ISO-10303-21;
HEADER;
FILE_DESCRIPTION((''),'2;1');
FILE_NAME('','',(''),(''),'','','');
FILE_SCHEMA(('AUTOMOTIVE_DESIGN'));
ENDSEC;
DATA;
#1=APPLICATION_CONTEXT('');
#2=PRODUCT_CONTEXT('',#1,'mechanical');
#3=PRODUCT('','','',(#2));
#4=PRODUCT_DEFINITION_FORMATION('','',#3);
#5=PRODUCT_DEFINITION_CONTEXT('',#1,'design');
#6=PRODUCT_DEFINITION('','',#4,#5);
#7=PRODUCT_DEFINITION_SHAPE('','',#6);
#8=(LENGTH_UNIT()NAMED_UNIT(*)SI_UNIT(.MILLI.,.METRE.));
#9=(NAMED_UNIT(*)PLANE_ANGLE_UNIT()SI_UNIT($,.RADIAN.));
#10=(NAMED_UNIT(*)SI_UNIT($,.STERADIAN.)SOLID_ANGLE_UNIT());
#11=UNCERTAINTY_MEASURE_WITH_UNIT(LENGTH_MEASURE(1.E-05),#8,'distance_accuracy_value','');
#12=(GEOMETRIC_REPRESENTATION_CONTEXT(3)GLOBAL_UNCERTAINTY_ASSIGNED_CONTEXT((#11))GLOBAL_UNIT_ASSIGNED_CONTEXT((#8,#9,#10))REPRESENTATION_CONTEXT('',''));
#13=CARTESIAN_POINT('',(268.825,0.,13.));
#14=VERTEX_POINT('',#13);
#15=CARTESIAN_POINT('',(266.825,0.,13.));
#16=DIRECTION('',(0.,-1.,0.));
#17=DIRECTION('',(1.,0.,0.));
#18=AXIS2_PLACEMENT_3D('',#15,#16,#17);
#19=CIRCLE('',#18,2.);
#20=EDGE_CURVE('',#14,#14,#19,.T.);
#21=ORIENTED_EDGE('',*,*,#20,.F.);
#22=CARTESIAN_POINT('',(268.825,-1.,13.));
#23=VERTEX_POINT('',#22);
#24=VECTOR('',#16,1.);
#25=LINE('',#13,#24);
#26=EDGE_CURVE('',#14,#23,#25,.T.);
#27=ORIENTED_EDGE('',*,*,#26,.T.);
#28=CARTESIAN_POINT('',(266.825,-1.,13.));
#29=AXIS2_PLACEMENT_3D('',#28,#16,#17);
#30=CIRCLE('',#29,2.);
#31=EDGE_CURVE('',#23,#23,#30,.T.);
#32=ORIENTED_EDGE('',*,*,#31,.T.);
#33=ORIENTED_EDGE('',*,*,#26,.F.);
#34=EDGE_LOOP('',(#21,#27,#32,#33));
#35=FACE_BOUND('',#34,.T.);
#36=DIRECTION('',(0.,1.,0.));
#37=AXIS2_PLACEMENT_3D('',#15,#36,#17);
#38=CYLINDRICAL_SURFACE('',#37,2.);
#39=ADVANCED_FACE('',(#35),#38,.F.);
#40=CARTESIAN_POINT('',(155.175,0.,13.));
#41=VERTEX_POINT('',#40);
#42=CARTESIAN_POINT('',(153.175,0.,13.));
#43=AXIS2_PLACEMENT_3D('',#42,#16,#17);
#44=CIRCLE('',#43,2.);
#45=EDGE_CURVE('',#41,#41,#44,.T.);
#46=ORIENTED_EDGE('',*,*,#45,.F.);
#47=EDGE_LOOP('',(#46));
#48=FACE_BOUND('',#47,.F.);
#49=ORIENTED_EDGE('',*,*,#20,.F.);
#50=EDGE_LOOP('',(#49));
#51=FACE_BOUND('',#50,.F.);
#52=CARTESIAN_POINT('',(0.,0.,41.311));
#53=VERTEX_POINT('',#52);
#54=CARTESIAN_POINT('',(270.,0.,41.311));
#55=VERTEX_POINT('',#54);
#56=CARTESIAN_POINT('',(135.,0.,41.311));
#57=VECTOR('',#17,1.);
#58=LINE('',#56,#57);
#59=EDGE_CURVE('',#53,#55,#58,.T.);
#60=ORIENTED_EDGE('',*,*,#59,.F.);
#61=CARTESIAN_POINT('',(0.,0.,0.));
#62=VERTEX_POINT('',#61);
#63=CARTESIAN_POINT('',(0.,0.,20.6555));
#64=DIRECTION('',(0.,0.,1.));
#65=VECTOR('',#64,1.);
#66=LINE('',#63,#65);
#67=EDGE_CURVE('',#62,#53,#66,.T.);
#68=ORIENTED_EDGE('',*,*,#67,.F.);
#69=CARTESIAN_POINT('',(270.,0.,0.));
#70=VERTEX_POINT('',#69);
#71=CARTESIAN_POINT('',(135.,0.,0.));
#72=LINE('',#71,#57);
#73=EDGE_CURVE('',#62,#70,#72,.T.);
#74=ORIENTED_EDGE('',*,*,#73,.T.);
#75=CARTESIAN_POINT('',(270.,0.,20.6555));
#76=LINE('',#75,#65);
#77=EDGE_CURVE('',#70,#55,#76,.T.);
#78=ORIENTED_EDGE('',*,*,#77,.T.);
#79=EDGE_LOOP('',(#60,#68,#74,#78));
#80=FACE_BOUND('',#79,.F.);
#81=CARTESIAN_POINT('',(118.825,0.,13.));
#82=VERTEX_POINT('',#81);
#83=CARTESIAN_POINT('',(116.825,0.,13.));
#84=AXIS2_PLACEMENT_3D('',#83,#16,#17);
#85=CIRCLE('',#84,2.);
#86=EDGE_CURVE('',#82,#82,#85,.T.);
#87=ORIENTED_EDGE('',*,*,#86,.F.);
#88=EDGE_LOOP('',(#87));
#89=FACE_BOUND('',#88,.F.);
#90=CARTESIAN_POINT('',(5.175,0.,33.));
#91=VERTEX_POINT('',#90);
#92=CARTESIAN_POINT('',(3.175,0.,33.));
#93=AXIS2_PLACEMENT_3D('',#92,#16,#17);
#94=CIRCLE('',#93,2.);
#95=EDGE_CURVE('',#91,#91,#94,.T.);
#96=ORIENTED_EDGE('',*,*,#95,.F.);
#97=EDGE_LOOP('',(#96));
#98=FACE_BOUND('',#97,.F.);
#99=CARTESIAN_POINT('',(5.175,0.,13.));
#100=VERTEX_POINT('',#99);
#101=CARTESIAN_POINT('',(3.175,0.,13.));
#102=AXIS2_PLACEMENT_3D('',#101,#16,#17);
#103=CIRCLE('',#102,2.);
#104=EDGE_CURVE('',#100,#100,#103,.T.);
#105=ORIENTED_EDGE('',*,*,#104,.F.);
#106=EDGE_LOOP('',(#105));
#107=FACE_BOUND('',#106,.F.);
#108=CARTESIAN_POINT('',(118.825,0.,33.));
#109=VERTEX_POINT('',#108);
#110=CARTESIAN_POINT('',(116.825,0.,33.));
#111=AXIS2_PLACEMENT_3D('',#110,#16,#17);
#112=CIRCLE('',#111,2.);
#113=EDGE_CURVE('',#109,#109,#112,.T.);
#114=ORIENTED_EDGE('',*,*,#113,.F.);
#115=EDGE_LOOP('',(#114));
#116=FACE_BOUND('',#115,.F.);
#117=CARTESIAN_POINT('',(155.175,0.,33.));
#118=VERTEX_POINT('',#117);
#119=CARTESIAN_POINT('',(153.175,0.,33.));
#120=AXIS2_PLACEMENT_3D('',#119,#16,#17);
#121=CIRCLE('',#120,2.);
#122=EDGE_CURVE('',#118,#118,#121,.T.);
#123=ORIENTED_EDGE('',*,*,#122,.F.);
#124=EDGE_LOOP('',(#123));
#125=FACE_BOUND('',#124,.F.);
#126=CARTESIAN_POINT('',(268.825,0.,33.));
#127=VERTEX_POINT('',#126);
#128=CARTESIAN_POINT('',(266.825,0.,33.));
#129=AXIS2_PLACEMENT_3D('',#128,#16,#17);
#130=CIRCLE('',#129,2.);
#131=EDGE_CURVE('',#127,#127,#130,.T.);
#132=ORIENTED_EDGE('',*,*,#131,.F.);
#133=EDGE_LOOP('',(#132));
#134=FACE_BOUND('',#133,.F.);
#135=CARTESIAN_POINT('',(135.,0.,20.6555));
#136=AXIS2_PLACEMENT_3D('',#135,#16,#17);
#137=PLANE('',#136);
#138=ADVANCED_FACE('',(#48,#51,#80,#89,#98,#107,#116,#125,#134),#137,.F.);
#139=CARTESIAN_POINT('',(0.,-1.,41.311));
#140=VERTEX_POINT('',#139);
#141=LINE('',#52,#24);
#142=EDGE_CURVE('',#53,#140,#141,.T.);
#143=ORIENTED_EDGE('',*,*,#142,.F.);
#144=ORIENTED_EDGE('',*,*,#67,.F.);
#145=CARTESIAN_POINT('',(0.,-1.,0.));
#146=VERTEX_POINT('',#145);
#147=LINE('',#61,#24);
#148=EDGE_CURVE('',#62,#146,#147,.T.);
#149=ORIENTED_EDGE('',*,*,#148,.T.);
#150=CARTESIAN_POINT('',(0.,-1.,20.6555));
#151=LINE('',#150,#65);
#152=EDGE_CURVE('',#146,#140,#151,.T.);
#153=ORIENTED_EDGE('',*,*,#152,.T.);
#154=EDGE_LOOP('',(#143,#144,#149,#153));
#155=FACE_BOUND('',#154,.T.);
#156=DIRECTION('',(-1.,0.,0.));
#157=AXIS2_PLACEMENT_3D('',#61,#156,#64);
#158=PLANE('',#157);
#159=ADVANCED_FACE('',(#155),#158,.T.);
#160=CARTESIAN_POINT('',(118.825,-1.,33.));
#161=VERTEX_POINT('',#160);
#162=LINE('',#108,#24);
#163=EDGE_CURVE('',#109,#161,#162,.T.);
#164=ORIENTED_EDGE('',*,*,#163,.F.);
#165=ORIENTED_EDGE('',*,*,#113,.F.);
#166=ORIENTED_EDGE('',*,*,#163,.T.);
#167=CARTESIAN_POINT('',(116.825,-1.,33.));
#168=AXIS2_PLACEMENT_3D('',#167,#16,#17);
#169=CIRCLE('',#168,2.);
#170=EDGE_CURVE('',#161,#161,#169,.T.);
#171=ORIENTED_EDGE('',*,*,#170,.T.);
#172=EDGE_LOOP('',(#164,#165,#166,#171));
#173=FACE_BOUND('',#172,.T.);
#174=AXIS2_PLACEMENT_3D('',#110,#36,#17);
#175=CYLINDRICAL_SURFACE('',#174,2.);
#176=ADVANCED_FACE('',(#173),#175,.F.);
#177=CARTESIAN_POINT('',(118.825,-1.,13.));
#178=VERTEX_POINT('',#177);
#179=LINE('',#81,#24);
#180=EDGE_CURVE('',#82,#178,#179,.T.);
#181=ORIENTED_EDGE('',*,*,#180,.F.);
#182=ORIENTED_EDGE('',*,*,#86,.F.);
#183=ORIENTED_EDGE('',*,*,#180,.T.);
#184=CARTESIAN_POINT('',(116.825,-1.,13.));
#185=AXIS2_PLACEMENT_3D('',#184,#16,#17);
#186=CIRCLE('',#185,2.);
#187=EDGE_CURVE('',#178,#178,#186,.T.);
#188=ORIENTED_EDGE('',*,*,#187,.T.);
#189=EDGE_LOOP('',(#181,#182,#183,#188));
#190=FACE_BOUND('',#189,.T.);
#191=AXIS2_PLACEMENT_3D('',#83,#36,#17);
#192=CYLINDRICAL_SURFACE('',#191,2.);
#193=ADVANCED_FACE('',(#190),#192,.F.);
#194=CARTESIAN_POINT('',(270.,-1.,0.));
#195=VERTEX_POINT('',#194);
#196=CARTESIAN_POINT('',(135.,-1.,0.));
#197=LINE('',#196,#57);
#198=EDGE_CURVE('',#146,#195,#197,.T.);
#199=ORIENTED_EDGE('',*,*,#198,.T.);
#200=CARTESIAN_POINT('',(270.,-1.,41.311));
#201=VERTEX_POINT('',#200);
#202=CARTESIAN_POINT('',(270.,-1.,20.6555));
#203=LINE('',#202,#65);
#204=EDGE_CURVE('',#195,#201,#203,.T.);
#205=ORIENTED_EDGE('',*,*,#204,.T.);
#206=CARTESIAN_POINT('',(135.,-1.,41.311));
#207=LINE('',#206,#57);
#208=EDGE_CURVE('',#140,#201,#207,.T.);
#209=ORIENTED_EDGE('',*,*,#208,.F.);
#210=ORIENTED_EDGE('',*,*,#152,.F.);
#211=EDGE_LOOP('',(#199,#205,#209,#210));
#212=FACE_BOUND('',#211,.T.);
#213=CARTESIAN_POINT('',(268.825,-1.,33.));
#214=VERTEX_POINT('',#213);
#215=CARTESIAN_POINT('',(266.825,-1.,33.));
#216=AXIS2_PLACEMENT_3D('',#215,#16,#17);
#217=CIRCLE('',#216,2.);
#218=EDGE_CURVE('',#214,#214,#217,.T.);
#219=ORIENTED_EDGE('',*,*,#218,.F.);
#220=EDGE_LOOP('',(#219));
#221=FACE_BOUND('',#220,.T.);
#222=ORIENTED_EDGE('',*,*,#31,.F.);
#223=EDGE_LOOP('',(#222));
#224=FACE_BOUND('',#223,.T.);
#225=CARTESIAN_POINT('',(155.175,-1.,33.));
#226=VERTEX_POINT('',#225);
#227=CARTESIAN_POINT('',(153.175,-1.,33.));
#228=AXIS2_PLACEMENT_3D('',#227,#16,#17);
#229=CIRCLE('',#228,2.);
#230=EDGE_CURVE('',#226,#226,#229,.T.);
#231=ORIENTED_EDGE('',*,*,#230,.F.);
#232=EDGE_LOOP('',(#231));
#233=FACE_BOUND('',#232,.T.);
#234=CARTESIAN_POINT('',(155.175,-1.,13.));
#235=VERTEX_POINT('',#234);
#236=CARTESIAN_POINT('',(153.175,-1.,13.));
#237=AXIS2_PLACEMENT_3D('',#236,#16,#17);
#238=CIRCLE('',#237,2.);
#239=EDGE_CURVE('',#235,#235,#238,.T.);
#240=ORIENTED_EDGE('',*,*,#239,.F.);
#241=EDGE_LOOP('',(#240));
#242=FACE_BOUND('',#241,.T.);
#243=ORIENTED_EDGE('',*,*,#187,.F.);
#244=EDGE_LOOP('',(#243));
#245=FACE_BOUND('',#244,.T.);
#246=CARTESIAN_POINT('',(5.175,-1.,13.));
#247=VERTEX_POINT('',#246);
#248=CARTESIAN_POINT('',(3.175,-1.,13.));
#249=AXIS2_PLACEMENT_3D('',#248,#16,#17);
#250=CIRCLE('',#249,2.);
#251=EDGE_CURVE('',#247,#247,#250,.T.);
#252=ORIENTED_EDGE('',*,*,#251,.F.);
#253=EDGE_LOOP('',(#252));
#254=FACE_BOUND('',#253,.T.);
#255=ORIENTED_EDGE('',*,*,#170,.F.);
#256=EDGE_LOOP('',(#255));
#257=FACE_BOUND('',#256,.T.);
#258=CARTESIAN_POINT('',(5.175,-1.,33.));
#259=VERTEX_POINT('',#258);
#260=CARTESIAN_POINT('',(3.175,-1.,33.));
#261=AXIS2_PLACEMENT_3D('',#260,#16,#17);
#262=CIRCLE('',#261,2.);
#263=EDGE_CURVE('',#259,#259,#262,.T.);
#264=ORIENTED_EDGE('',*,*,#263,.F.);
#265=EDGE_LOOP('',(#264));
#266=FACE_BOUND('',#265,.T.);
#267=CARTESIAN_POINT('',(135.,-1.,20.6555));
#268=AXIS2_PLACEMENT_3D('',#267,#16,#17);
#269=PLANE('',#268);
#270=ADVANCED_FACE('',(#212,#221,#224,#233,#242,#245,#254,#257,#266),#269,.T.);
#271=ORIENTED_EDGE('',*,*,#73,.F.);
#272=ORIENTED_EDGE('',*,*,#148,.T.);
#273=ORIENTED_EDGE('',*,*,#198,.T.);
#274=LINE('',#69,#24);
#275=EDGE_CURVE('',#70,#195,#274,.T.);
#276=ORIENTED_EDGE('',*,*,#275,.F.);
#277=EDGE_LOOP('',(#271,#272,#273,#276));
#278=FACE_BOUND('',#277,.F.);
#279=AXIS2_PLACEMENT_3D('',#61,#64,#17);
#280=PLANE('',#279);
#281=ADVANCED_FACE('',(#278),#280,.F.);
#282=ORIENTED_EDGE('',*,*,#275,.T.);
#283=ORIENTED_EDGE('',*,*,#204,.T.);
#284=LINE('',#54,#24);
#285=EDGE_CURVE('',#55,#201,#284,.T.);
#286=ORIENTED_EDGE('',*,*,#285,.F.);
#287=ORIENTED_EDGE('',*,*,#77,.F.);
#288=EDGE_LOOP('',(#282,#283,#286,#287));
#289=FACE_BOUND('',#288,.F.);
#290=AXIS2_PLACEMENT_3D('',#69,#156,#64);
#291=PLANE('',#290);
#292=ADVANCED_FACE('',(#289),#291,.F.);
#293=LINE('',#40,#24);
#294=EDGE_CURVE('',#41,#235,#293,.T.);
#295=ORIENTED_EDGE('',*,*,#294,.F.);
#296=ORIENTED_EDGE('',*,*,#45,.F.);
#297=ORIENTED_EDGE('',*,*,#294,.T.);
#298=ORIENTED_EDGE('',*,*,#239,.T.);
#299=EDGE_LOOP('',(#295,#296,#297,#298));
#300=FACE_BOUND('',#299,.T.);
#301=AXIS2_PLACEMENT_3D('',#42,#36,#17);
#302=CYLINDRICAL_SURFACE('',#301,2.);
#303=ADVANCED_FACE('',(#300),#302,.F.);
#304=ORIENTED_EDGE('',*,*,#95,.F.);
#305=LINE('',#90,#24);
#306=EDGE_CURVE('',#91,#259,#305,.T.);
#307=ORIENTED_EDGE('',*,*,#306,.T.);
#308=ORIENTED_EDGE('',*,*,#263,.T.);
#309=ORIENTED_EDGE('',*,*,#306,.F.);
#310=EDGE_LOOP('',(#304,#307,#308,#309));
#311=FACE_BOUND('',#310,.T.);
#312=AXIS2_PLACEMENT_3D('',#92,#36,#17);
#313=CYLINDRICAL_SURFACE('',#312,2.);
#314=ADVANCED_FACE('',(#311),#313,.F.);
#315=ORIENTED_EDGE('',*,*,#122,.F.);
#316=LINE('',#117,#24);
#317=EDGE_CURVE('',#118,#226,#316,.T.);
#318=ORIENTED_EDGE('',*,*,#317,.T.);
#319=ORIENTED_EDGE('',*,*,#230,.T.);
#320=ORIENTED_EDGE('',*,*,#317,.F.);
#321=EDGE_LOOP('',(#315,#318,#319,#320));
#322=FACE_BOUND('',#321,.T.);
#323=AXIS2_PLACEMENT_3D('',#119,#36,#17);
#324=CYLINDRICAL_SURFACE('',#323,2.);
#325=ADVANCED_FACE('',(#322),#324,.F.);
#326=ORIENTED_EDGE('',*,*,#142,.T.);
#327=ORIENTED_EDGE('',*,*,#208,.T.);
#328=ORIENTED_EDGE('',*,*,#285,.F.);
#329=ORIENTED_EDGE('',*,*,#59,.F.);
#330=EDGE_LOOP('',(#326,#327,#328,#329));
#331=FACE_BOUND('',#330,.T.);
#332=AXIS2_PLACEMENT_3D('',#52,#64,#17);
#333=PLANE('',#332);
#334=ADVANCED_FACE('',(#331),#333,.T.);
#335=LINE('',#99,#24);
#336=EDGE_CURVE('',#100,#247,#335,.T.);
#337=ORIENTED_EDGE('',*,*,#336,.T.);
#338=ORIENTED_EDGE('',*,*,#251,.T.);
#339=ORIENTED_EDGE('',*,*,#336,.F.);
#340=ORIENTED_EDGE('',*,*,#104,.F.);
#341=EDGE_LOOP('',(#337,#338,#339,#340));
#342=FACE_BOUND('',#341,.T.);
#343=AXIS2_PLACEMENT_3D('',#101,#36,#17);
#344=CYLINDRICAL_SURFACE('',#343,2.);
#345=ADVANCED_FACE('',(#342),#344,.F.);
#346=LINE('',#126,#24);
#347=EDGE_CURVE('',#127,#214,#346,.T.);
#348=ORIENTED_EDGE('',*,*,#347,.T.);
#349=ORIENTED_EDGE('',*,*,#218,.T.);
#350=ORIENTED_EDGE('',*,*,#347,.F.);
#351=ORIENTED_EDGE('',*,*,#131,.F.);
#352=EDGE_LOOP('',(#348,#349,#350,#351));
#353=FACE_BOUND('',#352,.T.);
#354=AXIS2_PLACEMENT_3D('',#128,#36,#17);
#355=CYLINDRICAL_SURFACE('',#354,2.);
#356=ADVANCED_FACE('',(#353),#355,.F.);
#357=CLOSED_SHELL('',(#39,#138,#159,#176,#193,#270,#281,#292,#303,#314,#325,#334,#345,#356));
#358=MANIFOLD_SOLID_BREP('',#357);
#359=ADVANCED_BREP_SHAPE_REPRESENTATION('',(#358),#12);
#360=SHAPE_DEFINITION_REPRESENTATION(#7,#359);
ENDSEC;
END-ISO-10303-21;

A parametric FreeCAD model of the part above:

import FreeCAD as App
import Part
import Sketcher
from FreeCAD import Vector
Q = App.Units.Quantity


def add_polygon(sketch, points):
    """Adds a closed chain of lines whose ends are joined by coincident constraints."""
    first, n = sketch.GeometryCount, len(points)
    for a, b in zip(points, points[1:] + points[:1]):
        sketch.addGeometry(Part.LineSegment(App.Vector(*a, 0), App.Vector(*b, 0)), False)
    for i in range(n):
        sketch.addConstraint(Sketcher.Constraint("Coincident", first + i, 2, first + (i + 1) % n, 1))

doc = App.newDocument("Part")
params = doc.addObject("Spreadsheet::Sheet", "Params")
for row, (alias, value) in enumerate([
    ("sketch1_diameter", "4 mm"),
    ("sketch1_width", "270 mm"),
    ("pad1_length", "1 mm"),
], start=1):
    params.set(f"A{row}", alias)
    params.set(f"B{row}", "=" + value)
    params.setAlias(f"B{row}", alias)

body = doc.addObject("PartDesign::Body", "Body")

# Sketch on XZ plane
sketch1 = body.newObject("Sketcher::SketchObject", "Sketch")
sketch1.AttachmentSupport = (doc.getObject("XZ_Plane"), [""])
sketch1.MapMode = "FlatFace"
add_polygon(sketch1, [(0, 41.311), (0, 0), (270, 0), (270, 41.311)])  # lines 0-3
sketch1.addGeometry(Part.Circle(Vector(3.175, 13, 0), Vector(0, 0, 1), 2), False)  # 4
sketch1.addGeometry(Part.Circle(Vector(116.825, 13, 0), Vector(0, 0, 1), 2), False)  # 5
sketch1.addGeometry(Part.Circle(Vector(153.175, 13, 0), Vector(0, 0, 1), 2), False)  # 6
sketch1.addGeometry(Part.Circle(Vector(266.825, 13, 0), Vector(0, 0, 1), 2), False)  # 7
sketch1.addGeometry(Part.Circle(Vector(3.175, 33, 0), Vector(0, 0, 1), 2), False)  # 8
sketch1.addGeometry(Part.Circle(Vector(116.825, 33, 0), Vector(0, 0, 1), 2), False)  # 9
sketch1.addGeometry(Part.Circle(Vector(153.175, 33, 0), Vector(0, 0, 1), 2), False)  # 10
sketch1.addGeometry(Part.Circle(Vector(266.825, 33, 0), Vector(0, 0, 1), 2), False)  # 11
sketch1.addConstraint([
    Sketcher.Constraint("Vertical", 0),
    Sketcher.Constraint("Horizontal", 1),
    Sketcher.Constraint("Vertical", 2),
    Sketcher.Constraint("Horizontal", 3),
    Sketcher.Constraint("Coincident", 0, 2, -1, 1),
    Sketcher.Constraint("Equal", 4, 5),
    Sketcher.Constraint("Equal", 5, 6),
    Sketcher.Constraint("Equal", 6, 7),
    Sketcher.Constraint("Equal", 7, 8),
    Sketcher.Constraint("Equal", 8, 9),
    Sketcher.Constraint("Equal", 9, 10),
    Sketcher.Constraint("Equal", 10, 11),
    Sketcher.Constraint("Horizontal", 4, 3, 5, 3),
    Sketcher.Constraint("Horizontal", 5, 3, 6, 3),
    Sketcher.Constraint("Horizontal", 6, 3, 7, 3),
    Sketcher.Constraint("Horizontal", 8, 3, 9, 3),
    Sketcher.Constraint("Horizontal", 9, 3, 10, 3),
    Sketcher.Constraint("Horizontal", 10, 3, 11, 3),
    Sketcher.Constraint("Vertical", 4, 3, 8, 3),
    Sketcher.Constraint("Vertical", 5, 3, 9, 3),
    Sketcher.Constraint("Vertical", 6, 3, 10, 3),
    Sketcher.Constraint("Vertical", 7, 3, 11, 3),
    Sketcher.Constraint("Diameter", 4, Q("4 mm")),
    Sketcher.Constraint("DistanceX", 1, 1, 1, 2, Q("270 mm")),
    Sketcher.Constraint("DistanceY", -1, 1, 4, 3, Q("13 mm")),
    Sketcher.Constraint("DistanceY", -1, 1, 8, 3, Q("33 mm")),
    Sketcher.Constraint("DistanceX", 4, 3, 6, 3, Q("150 mm")),
    Sketcher.Constraint("DistanceX", 5, 3, 7, 3, Q("150 mm")),
    Sketcher.Constraint("DistanceY", 0, 2, 0, 1, Q("41.311 mm")),
    Sketcher.Constraint("DistanceX", 4, 3, 5, 3, Q("113.65 mm")),
    Sketcher.Constraint("DistanceX", -1, 1, 4, 3, Q("3.175 mm")),
])
sketch1.setExpression("Constraints[26]", "Params.sketch1_diameter")
sketch1.setExpression("Constraints[27]", "Params.sketch1_width")
pad1 = body.newObject("PartDesign::Pad", "Pad")
pad1.Profile = sketch1
pad1.setExpression("Length", "Params.pad1_length")

doc.recompute()
